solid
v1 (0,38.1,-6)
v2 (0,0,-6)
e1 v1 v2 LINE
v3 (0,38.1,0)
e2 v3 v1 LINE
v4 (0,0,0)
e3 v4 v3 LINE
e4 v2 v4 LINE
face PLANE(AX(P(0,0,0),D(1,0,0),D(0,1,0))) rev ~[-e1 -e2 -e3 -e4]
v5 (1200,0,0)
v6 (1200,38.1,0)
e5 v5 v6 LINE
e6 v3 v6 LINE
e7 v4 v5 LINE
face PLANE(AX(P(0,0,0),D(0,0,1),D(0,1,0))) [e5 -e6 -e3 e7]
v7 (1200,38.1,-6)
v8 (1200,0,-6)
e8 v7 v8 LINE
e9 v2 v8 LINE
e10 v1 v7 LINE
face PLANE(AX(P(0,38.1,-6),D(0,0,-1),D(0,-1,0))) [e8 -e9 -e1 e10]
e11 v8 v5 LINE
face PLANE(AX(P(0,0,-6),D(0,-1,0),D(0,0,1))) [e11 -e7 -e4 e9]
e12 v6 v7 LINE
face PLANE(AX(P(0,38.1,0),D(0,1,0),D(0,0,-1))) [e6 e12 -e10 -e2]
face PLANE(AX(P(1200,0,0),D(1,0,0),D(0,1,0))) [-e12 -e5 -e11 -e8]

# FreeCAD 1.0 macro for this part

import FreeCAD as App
import Part
import Sketcher

doc = App.newDocument("Part")
params = doc.addObject("Spreadsheet::Sheet", "Params")
for row, (alias, value) in enumerate([
    ("sketch1_height", "6 mm"),
    ("sketch1_width", "38.1 mm"),
    ("pad1_length", "1200 mm"),
], start=1):
    params.set(f"A{row}", alias)
    params.set(f"B{row}", "=" + value)
    params.setAlias(f"B{row}", alias)

body = doc.addObject("PartDesign::Body", "Body")

sketch1 = doc.addObject("Sketcher::SketchObject", "Sketch")
body.addObject(sketch1)
sketch1.AttachmentSupport = (doc.YZ_Plane, [""])
sketch1.MapMode = "FlatFace"
sketch1.addGeometry([
    Part.LineSegment(App.Vector(38, 0, 0), App.Vector(0, 0, 0)),
    Part.LineSegment(App.Vector(0, 0, 0), App.Vector(0, -6, 0)),
    Part.LineSegment(App.Vector(0, -6, 0), App.Vector(38, -6, 0)),
    Part.LineSegment(App.Vector(38, -6, 0), App.Vector(38, 0, 0)),
], False)
sketch1.addConstraint([
    Sketcher.Constraint("Coincident", 0, 2, 1, 1),
    Sketcher.Constraint("Coincident", 1, 2, 2, 1),
    Sketcher.Constraint("Coincident", 2, 2, 3, 1),
    Sketcher.Constraint("Coincident", 3, 2, 0, 1),
    Sketcher.Constraint("Horizontal", 0),
    Sketcher.Constraint("Vertical", 1),
    Sketcher.Constraint("Horizontal", 2),
    Sketcher.Constraint("Vertical", 3),
    Sketcher.Constraint("Coincident", 0, 2, -1, 1),
    Sketcher.Constraint("DistanceY", 1, 2, 1, 1, 6.0),
    Sketcher.Constraint("DistanceX", 0, 2, 0, 1, 38.1),
])
sketch1.setExpression("Constraints[9]", "Params.sketch1_height")
sketch1.setExpression("Constraints[10]", "Params.sketch1_width")
pad1 = doc.addObject("PartDesign::Pad", "Pad")
body.addObject(pad1)
pad1.Profile = sketch1
pad1.setExpression("Length", "Params.pad1_length")

doc.recompute()
